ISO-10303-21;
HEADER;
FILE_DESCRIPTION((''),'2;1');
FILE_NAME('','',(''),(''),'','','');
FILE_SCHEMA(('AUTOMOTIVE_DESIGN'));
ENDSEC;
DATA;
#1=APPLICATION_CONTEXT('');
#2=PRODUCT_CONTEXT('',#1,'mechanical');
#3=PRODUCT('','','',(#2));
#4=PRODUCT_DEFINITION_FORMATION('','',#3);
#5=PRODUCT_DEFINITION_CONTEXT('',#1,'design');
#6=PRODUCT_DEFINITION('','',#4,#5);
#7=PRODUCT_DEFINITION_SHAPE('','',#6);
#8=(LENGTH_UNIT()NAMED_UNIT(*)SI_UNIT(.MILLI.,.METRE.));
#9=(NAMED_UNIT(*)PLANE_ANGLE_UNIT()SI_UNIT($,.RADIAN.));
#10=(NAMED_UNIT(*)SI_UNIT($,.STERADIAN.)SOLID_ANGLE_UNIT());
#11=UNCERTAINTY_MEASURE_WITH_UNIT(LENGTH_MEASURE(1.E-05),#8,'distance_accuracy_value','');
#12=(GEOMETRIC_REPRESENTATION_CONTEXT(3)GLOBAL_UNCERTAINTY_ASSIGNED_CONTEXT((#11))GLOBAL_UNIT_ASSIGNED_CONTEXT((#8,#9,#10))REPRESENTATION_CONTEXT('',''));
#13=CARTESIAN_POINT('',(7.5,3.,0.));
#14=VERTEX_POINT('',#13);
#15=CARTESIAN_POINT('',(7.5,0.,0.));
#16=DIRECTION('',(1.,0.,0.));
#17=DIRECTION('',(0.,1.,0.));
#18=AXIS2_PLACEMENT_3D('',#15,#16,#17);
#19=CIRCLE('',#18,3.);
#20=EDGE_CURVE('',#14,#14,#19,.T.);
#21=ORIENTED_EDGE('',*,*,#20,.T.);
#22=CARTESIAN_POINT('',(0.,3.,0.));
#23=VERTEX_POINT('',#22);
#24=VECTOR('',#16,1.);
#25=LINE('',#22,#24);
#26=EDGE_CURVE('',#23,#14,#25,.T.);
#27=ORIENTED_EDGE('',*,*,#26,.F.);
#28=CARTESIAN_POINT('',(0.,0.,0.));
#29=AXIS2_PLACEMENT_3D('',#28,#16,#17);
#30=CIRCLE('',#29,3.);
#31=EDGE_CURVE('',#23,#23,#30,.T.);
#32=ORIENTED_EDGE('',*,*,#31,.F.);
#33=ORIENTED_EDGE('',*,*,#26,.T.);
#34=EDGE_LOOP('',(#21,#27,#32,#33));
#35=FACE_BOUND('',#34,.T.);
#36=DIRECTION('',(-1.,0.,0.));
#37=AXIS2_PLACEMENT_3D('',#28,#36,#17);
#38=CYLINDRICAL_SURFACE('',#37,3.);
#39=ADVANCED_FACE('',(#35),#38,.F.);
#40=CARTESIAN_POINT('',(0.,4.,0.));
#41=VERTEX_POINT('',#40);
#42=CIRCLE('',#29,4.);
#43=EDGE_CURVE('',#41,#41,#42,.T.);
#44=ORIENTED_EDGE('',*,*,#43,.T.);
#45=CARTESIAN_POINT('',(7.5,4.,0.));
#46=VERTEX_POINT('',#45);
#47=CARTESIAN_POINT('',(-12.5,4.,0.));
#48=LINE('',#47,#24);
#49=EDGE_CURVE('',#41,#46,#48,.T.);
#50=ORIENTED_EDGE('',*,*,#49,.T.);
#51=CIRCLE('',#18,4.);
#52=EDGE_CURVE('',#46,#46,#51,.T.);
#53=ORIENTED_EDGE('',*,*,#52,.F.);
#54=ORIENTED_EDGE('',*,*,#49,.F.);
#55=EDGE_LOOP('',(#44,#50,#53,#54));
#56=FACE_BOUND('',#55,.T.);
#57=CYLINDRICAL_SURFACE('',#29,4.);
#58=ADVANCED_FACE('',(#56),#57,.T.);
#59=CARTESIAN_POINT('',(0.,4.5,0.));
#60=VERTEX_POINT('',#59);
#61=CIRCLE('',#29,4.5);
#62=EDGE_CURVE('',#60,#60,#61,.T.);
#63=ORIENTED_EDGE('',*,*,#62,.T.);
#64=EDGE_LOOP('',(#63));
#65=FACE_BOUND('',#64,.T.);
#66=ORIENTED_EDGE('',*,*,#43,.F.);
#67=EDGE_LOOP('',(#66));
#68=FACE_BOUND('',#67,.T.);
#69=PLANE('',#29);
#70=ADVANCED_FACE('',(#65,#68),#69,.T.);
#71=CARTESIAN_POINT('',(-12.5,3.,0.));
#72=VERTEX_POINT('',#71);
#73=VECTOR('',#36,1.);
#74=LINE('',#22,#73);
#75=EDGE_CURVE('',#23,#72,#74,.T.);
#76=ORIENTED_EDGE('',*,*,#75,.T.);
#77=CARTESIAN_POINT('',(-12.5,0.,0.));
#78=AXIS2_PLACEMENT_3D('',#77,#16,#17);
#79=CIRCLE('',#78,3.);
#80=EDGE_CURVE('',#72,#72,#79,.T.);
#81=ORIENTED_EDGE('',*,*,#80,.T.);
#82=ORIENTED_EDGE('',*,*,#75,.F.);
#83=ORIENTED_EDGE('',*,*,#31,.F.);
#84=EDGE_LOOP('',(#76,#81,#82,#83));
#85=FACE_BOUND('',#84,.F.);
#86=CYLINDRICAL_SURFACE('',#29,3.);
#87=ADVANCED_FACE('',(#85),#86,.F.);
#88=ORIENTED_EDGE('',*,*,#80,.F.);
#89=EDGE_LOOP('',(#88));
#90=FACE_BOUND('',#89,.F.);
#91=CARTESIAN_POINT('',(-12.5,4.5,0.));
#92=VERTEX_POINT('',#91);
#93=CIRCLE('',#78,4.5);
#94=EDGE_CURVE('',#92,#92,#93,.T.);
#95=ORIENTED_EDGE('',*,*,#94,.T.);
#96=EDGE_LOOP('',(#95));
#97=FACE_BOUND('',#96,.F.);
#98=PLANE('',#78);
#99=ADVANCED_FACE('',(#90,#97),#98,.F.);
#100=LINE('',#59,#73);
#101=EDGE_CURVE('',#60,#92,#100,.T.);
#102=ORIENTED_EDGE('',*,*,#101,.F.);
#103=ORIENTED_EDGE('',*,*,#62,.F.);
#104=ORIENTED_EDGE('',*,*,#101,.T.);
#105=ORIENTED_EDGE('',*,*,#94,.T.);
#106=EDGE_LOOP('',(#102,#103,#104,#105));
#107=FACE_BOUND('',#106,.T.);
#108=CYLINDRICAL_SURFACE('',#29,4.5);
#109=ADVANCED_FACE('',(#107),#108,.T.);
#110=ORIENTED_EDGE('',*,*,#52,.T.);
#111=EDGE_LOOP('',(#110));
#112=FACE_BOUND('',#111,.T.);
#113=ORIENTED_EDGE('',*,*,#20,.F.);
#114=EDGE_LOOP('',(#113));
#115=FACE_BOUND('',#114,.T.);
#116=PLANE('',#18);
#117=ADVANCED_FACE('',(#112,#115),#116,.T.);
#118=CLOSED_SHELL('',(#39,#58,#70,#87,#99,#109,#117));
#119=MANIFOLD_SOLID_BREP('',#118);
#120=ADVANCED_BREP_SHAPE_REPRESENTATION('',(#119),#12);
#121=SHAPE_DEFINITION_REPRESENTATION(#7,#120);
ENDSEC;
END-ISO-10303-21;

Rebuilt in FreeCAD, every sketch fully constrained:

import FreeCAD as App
import Part
import Sketcher

V = App.Vector
Q = App.Units.Quantity

doc = App.newDocument("Part")
params = doc.addObject("Spreadsheet::Sheet", "Params")
for row, (alias, value) in enumerate([
    ("sketch1_diameter", "8 mm"),
    ("sketch1_diameter2", "6 mm"),
    ("pad1_length", "7.5 mm"),
    ("pad1_length2", "12.5 mm"),
    ("sketch2_diameter", "9 mm"),
    ("sketch2_diameter2", "8 mm"),
    ("pad2_length", "12.5 mm"),
], start=1):
    params.set(f"A{row}", alias)
    params.set(f"B{row}", "=" + value)
    params.setAlias(f"B{row}", alias)

body = doc.addObject("PartDesign::Body", "Body")

# Sketch on YZ plane
sketch1 = body.newObject("Sketcher::SketchObject", "Sketch")
sketch1.AttachmentSupport = (doc.getObject("YZ_Plane"), [""])
sketch1.MapMode = "FlatFace"
sketch1.addGeometry(Part.Circle(V(0, 0, 0), V(0, 0, 1), 4), False)
sketch1.addGeometry(Part.Circle(V(0, 0, 0), V(0, 0, 1), 3), False)
sketch1.addConstraint(Sketcher.Constraint("Coincident", 0, 3, -1, 1))
sketch1.addConstraint(Sketcher.Constraint("Coincident", 1, 3, -1, 1))
sketch1.addConstraint(Sketcher.Constraint("Diameter", 0, Q("8 mm")))
sketch1.addConstraint(Sketcher.Constraint("Diameter", 1, Q("6 mm")))
sketch1.setExpression("Constraints[2]", "Params.sketch1_diameter")
sketch1.setExpression("Constraints[3]", "Params.sketch1_diameter2")
pad1 = body.newObject("PartDesign::Pad", "Pad")
pad1.Profile = sketch1
pad1.Type = "TwoLengths"
pad1.setExpression("Length", "Params.pad1_length")
pad1.setExpression("Length2", "Params.pad1_length2")

# Sketch on YZ plane
sketch2 = body.newObject("Sketcher::SketchObject", "Sketch001")
sketch2.AttachmentSupport = (doc.getObject("YZ_Plane"), [""])
sketch2.MapMode = "FlatFace"
sketch2.addGeometry(Part.Circle(V(0, 0, 0), V(0, 0, 1), 4.5), False)
sketch2.addGeometry(Part.Circle(V(0, 0, 0), V(0, 0, 1), 4), False)
sketch2.addConstraint(Sketcher.Constraint("Coincident", 0, 3, -1, 1))
sketch2.addConstraint(Sketcher.Constraint("Coincident", 1, 3, -1, 1))
sketch2.addConstraint(Sketcher.Constraint("Diameter", 0, Q("9 mm")))
sketch2.addConstraint(Sketcher.Constraint("Diameter", 1, Q("8 mm")))
sketch2.setExpression("Constraints[2]", "Params.sketch2_diameter")
sketch2.setExpression("Constraints[3]", "Params.sketch2_diameter2")
pad2 = body.newObject("PartDesign::Pad", "Pad001")
pad2.Profile = sketch2
pad2.setExpression("Length", "Params.pad2_length")
pad2.Reversed = True

doc.recompute()
